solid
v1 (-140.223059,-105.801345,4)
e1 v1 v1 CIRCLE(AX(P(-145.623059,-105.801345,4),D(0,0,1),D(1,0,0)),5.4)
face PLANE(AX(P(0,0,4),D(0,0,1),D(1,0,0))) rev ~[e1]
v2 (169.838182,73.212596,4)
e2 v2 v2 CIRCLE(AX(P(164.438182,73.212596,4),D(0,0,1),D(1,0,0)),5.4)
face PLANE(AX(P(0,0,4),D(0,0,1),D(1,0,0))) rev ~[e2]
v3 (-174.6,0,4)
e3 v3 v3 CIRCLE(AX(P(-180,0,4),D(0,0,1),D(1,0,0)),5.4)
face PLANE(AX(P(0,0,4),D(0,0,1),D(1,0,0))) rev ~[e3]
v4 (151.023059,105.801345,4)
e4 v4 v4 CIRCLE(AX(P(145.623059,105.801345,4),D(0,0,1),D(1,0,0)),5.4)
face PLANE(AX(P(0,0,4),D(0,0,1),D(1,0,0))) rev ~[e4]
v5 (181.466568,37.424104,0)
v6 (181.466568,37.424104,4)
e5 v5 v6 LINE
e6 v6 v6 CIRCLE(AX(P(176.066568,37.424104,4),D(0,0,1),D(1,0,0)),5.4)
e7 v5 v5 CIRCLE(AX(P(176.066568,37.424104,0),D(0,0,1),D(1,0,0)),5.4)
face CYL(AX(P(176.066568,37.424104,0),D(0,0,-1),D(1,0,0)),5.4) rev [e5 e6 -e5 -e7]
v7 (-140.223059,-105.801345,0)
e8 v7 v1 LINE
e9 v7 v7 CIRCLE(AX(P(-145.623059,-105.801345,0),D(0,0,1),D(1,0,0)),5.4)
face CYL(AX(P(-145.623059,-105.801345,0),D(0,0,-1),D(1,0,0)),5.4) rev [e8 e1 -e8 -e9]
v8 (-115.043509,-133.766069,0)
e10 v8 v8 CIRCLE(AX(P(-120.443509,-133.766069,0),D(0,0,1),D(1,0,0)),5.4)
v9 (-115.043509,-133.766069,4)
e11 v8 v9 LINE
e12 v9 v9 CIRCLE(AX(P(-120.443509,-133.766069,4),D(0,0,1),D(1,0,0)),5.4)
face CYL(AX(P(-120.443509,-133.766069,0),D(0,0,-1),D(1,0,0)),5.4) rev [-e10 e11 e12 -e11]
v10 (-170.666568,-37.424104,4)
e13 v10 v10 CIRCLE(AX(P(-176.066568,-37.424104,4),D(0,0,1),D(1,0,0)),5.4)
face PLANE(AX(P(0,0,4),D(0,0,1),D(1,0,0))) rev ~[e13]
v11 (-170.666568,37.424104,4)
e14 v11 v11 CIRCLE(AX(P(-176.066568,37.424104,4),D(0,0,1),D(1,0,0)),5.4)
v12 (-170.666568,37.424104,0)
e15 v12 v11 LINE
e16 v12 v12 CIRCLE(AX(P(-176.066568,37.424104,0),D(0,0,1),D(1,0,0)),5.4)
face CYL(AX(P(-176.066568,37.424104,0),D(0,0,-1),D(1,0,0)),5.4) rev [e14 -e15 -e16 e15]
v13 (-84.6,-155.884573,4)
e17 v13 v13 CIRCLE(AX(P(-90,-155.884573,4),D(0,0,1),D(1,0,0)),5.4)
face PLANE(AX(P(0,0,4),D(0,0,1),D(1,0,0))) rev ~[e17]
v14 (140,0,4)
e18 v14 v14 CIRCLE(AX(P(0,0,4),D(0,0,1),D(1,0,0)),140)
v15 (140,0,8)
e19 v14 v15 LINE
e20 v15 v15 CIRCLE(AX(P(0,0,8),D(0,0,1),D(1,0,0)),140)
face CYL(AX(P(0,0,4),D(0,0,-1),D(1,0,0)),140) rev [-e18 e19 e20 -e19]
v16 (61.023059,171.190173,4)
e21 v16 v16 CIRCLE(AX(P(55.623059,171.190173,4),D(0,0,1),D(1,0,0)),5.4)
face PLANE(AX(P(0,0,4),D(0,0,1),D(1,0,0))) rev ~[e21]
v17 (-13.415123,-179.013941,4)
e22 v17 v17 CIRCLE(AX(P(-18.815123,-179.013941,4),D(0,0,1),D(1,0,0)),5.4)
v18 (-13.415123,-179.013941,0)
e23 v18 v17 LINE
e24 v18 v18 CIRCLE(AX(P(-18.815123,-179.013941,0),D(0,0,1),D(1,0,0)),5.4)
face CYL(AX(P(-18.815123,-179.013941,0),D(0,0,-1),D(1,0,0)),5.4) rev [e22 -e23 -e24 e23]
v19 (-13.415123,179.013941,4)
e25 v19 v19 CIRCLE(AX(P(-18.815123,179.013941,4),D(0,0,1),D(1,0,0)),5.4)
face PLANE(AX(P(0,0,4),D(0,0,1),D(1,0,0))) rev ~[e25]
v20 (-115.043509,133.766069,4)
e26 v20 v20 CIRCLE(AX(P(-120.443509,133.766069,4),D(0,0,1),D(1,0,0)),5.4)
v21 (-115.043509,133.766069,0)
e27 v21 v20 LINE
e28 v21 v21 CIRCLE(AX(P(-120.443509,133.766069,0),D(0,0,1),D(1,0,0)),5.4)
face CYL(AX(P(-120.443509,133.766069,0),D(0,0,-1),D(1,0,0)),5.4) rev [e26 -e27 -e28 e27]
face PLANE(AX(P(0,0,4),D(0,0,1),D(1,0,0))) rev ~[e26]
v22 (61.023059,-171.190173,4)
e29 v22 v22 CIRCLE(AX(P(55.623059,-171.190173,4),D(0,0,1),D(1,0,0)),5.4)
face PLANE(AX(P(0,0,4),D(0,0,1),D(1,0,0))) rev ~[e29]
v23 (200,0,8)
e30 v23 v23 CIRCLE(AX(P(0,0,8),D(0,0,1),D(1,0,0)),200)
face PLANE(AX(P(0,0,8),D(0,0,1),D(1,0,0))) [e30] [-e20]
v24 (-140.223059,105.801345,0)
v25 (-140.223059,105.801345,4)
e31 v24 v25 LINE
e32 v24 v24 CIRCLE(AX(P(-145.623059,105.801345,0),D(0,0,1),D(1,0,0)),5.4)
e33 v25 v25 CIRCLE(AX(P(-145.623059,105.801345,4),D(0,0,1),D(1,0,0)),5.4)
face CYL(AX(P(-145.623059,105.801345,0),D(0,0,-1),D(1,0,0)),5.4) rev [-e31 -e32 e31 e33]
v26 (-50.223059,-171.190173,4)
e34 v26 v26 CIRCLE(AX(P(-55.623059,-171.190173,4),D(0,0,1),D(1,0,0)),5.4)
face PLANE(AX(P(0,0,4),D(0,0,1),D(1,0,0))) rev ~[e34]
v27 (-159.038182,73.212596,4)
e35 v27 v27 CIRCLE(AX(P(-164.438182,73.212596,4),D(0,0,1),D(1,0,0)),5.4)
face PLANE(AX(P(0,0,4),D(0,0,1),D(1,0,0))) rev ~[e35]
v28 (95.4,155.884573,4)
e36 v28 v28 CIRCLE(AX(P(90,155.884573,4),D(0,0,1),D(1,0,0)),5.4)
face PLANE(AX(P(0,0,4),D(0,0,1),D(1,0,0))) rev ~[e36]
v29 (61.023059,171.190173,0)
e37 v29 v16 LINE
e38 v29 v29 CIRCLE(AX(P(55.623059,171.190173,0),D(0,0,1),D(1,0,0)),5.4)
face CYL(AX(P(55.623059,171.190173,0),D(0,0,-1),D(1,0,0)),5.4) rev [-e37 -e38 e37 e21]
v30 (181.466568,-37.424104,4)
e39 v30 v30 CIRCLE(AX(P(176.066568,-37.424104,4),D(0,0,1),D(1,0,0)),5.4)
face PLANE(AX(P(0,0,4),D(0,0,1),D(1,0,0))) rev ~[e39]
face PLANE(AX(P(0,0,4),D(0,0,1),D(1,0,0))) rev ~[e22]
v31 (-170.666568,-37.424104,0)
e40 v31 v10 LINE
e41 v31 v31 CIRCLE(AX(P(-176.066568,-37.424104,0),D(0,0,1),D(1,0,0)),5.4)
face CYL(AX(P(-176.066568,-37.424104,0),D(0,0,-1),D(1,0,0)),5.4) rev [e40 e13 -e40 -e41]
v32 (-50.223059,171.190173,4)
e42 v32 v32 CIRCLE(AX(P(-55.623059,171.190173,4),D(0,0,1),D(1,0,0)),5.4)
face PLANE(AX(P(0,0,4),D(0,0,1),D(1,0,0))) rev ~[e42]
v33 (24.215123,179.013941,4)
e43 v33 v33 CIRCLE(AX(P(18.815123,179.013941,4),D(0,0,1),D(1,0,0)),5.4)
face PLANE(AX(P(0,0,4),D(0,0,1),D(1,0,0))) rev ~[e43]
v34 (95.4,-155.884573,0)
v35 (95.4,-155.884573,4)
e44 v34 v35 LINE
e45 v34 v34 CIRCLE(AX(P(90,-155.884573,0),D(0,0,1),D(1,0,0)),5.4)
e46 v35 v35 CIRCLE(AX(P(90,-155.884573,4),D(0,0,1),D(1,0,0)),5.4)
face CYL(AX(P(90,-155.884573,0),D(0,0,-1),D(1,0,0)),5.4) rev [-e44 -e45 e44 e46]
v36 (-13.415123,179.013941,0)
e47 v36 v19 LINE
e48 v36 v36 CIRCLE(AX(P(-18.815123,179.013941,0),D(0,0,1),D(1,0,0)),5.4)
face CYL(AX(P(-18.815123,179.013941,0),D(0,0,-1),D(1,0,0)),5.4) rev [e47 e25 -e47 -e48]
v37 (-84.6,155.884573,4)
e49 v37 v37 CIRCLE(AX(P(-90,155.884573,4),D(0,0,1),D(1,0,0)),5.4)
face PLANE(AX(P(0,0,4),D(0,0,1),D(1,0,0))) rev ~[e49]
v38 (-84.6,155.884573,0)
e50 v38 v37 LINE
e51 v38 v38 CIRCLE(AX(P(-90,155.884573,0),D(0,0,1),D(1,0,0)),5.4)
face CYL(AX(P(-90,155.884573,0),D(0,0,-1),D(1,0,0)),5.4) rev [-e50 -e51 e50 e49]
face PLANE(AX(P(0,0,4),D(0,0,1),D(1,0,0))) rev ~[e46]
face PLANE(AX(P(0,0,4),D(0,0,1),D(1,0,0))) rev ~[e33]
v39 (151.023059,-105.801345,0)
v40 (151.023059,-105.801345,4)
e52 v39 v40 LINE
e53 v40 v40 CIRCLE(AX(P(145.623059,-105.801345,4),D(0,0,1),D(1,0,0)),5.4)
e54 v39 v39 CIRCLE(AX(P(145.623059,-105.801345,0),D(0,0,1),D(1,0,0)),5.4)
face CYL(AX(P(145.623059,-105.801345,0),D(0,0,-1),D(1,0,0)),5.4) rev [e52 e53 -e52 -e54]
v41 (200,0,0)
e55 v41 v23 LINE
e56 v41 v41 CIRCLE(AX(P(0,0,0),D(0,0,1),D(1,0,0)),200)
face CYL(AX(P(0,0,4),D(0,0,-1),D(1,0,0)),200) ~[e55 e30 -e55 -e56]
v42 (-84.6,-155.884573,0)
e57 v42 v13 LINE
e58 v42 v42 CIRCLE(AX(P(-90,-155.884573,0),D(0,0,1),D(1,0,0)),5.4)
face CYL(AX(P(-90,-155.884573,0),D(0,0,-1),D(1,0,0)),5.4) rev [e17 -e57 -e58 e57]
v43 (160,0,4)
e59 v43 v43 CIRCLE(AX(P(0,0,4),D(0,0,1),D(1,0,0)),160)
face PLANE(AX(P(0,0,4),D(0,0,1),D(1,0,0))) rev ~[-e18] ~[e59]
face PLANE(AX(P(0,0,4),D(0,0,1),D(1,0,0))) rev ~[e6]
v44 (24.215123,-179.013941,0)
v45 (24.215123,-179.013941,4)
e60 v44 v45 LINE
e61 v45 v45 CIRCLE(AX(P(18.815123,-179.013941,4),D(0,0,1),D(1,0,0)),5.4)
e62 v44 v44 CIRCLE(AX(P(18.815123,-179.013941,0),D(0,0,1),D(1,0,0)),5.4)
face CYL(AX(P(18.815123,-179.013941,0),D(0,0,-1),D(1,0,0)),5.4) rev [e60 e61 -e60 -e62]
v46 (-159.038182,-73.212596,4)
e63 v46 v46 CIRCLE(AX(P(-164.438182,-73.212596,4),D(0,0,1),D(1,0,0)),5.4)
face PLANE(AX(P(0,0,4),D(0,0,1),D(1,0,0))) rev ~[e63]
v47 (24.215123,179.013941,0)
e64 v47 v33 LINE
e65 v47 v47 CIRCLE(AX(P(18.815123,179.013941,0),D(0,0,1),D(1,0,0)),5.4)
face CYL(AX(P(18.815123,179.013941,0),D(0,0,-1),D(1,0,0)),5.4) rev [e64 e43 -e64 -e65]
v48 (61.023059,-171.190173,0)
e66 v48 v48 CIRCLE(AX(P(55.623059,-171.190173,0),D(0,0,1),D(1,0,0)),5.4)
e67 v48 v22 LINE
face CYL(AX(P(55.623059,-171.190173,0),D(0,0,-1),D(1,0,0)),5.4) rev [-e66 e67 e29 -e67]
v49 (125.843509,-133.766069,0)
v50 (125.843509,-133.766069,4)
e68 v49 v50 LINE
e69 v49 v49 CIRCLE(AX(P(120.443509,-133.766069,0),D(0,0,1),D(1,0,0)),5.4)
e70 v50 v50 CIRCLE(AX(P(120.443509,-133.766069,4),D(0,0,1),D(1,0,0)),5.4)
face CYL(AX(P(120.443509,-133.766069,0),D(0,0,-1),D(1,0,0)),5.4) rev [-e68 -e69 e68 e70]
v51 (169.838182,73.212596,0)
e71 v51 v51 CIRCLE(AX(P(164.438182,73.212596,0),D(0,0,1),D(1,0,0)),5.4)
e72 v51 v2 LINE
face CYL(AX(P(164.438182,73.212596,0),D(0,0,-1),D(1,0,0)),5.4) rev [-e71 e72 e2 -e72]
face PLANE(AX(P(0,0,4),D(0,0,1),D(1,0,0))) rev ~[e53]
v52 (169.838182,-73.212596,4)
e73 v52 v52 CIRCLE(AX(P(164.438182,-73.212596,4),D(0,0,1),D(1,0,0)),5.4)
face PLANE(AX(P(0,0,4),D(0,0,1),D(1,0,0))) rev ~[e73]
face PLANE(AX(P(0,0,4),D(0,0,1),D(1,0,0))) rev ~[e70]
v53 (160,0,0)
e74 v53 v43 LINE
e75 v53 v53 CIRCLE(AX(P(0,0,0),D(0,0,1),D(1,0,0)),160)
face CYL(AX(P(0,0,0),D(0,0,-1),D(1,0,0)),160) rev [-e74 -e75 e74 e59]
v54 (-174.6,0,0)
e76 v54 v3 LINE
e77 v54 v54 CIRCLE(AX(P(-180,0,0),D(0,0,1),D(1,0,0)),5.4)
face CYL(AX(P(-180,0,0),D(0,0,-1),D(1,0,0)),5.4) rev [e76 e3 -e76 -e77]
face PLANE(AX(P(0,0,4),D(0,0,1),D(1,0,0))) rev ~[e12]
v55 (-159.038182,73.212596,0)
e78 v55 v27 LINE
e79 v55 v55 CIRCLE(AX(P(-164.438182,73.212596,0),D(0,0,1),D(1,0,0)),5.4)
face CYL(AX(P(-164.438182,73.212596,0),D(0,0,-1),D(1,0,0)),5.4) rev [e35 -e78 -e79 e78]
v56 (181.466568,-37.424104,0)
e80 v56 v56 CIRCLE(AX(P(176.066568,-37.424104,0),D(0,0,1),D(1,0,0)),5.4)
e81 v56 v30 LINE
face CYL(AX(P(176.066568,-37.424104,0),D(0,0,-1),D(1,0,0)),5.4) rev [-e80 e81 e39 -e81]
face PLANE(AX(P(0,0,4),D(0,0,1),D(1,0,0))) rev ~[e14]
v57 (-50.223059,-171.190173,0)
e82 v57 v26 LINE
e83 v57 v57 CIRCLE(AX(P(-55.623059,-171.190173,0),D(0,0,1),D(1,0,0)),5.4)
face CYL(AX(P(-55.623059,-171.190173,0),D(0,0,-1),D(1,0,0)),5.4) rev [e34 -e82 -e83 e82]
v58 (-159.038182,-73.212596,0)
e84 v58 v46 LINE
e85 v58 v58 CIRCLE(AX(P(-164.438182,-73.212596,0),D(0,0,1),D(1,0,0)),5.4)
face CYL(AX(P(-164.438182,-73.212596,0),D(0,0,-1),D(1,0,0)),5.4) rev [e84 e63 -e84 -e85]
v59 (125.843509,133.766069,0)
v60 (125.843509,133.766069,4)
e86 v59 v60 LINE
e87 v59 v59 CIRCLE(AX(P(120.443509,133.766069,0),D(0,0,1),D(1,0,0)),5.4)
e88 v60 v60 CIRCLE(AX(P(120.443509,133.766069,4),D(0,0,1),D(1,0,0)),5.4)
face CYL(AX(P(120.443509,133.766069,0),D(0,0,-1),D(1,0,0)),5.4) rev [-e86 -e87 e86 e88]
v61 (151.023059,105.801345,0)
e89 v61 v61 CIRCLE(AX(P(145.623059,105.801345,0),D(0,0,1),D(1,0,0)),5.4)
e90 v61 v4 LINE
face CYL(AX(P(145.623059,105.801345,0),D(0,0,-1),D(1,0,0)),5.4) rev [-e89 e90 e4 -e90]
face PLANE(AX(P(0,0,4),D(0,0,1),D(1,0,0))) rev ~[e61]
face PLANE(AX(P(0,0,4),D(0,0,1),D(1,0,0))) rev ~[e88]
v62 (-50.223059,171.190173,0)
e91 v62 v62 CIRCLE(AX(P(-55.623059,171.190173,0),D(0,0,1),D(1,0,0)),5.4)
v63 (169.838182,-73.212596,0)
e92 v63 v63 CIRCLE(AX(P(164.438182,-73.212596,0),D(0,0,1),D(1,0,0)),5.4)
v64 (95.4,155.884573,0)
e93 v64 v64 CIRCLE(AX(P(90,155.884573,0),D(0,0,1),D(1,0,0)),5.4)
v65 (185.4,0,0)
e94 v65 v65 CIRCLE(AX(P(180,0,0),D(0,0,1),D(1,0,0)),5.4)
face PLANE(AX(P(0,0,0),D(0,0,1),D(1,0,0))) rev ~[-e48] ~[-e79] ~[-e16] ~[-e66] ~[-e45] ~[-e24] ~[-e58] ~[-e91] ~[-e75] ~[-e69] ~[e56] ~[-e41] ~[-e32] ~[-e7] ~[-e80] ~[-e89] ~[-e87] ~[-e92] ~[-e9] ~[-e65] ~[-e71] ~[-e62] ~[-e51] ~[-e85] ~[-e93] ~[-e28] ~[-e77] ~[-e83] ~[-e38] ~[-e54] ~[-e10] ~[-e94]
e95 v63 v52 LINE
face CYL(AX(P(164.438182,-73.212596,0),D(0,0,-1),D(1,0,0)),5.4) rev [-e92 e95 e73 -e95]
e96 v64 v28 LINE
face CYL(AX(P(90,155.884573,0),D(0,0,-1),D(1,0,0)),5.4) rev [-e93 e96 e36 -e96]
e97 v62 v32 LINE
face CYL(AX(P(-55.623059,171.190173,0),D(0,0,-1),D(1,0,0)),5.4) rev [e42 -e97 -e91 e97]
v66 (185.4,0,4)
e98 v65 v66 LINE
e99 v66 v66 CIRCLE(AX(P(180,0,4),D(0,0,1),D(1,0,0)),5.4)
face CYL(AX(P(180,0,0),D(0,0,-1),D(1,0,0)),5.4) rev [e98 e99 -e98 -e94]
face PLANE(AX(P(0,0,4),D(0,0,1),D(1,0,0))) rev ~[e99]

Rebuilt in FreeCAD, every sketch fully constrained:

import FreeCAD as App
import Part
import Sketcher

V = App.Vector
Q = App.Units.Quantity

doc = App.newDocument("Part")
body = doc.addObject("PartDesign::Body", "Body")

# Sketch on XY plane
sketch1 = body.newObject("Sketcher::SketchObject", "Sketch")
sketch1.AttachmentSupport = (doc.getObject("XY_Plane"), [""])
sketch1.MapMode = "FlatFace"
sketch1.addGeometry(Part.Circle(V(0, 0, 0), V(0, 0, 1), 200), False)
sketch1.addGeometry(Part.Circle(V(-146, -106, 0), V(0, 0, 1), 5), False)
sketch1.addGeometry(Part.Circle(V(-120, -134, 0), V(0, 0, 1), 5), False)
sketch1.addGeometry(Part.Circle(V(-56, -171, 0), V(0, 0, 1), 5), False)
sketch1.addGeometry(Part.Circle(V(-90, -156, 0), V(0, 0, 1), 5), False)
sketch1.addGeometry(Part.Circle(V(-19, -179, 0), V(0, 0, 1), 5), False)
sketch1.addGeometry(Part.Circle(V(-164, -73, 0), V(0, 0, 1), 5), False)
sketch1.addGeometry(Part.Circle(V(-176, -37, 0), V(0, 0, 1), 5), False)
sketch1.addGeometry(Part.Circle(V(-180, 0, 0), V(0, 0, 1), 5), False)
sketch1.addGeometry(Part.Circle(V(0, 0, 0), V(0, 0, 1), 160), False)
sketch1.addGeometry(Part.Circle(V(19, -179, 0), V(0, 0, 1), 5), False)
sketch1.addGeometry(Part.Circle(V(56, -171, 0), V(0, 0, 1), 5), False)
sketch1.addGeometry(Part.Circle(V(90, -156, 0), V(0, 0, 1), 5), False)
sketch1.addGeometry(Part.Circle(V(120, -134, 0), V(0, 0, 1), 5), False)
sketch1.addGeometry(Part.Circle(V(146, -106, 0), V(0, 0, 1), 5), False)
sketch1.addGeometry(Part.Circle(V(164, -73, 0), V(0, 0, 1), 5), False)
sketch1.addGeometry(Part.Circle(V(176, -37, 0), V(0, 0, 1), 5), False)
sketch1.addGeometry(Part.Circle(V(180, 0, 0), V(0, 0, 1), 5), False)
sketch1.addGeometry(Part.Circle(V(-176, 37, 0), V(0, 0, 1), 5), False)
sketch1.addGeometry(Part.Circle(V(-164, 73, 0), V(0, 0, 1), 5), False)
sketch1.addGeometry(Part.Circle(V(-146, 106, 0), V(0, 0, 1), 5), False)
sketch1.addGeometry(Part.Circle(V(-120, 134, 0), V(0, 0, 1), 5), False)
sketch1.addGeometry(Part.Circle(V(-90, 156, 0), V(0, 0, 1), 5), False)
sketch1.addGeometry(Part.Circle(V(-56, 171, 0), V(0, 0, 1), 5), False)
sketch1.addGeometry(Part.Circle(V(-19, 179, 0), V(0, 0, 1), 5), False)
sketch1.addGeometry(Part.Circle(V(176, 37, 0), V(0, 0, 1), 5), False)
sketch1.addGeometry(Part.Circle(V(164, 73, 0), V(0, 0, 1), 5), False)
sketch1.addGeometry(Part.Circle(V(19, 179, 0), V(0, 0, 1), 5), False)
sketch1.addGeometry(Part.Circle(V(90, 156, 0), V(0, 0, 1), 5), False)
sketch1.addGeometry(Part.Circle(V(56, 171, 0), V(0, 0, 1), 5), False)
sketch1.addGeometry(Part.Circle(V(120, 134, 0), V(0, 0, 1), 5), False)
sketch1.addGeometry(Part.Circle(V(146, 106, 0), V(0, 0, 1), 5), False)
sketch1.addConstraint(Sketcher.Constraint("Coincident", 0, 3, -1, 1))
sketch1.addConstraint(Sketcher.Constraint("Coincident", 9, 3, -1, 1))
sketch1.addConstraint(Sketcher.Constraint("Equal", 1, 2))
sketch1.addConstraint(Sketcher.Constraint("Equal", 2, 3))
sketch1.addConstraint(Sketcher.Constraint("Equal", 3, 4))
sketch1.addConstraint(Sketcher.Constraint("Equal", 4, 5))
sketch1.addConstraint(Sketcher.Constraint("Equal", 5, 6))
sketch1.addConstraint(Sketcher.Constraint("Equal", 6, 7))
sketch1.addConstraint(Sketcher.Constraint("Equal", 7, 8))
sketch1.addConstraint(Sketcher.Constraint("Equal", 8, 10))
sketch1.addConstraint(Sketcher.Constraint("Equal", 10, 11))
sketch1.addConstraint(Sketcher.Constraint("Equal", 11, 12))
sketch1.addConstraint(Sketcher.Constraint("Equal", 12, 13))
sketch1.addConstraint(Sketcher.Constraint("Equal", 13, 14))
sketch1.addConstraint(Sketcher.Constraint("Equal", 14, 15))
sketch1.addConstraint(Sketcher.Constraint("Equal", 15, 16))
sketch1.addConstraint(Sketcher.Constraint("Equal", 16, 17))
sketch1.addConstraint(Sketcher.Constraint("Equal", 17, 18))
sketch1.addConstraint(Sketcher.Constraint("Equal", 18, 19))
sketch1.addConstraint(Sketcher.Constraint("Equal", 19, 20))
sketch1.addConstraint(Sketcher.Constraint("Equal", 20, 21))
sketch1.addConstraint(Sketcher.Constraint("Equal", 21, 22))
sketch1.addConstraint(Sketcher.Constraint("Equal", 22, 23))
sketch1.addConstraint(Sketcher.Constraint("Equal", 23, 24))
sketch1.addConstraint(Sketcher.Constraint("Equal", 24, 25))
sketch1.addConstraint(Sketcher.Constraint("Equal", 25, 26))
sketch1.addConstraint(Sketcher.Constraint("Equal", 26, 27))
sketch1.addConstraint(Sketcher.Constraint("Equal", 27, 28))
sketch1.addConstraint(Sketcher.Constraint("Equal", 28, 29))
sketch1.addConstraint(Sketcher.Constraint("Equal", 29, 30))
sketch1.addConstraint(Sketcher.Constraint("Equal", 30, 31))
sketch1.addConstraint(Sketcher.Constraint("Symmetric", 8, 3, 17, 3, -1, 1))
sketch1.addConstraint(Sketcher.Constraint("Symmetric", 16, 3, 18, 3, -1, 1))
sketch1.addConstraint(Sketcher.Constraint("Symmetric", 15, 3, 19, 3, -1, 1))
sketch1.addConstraint(Sketcher.Constraint("Symmetric", 14, 3, 20, 3, -1, 1))
sketch1.addConstraint(Sketcher.Constraint("Symmetric", 13, 3, 21, 3, -1, 1))
sketch1.addConstraint(Sketcher.Constraint("Symmetric", 12, 3, 22, 3, -1, 1))
sketch1.addConstraint(Sketcher.Constraint("Symmetric", 11, 3, 23, 3, -1, 1))
sketch1.addConstraint(Sketcher.Constraint("Symmetric", 10, 3, 24, 3, -1, 1))
sketch1.addConstraint(Sketcher.Constraint("Symmetric", 7, 3, 25, 3, -1, 1))
sketch1.addConstraint(Sketcher.Constraint("Symmetric", 6, 3, 26, 3, -1, 1))
sketch1.addConstraint(Sketcher.Constraint("Symmetric", 5, 3, 27, 3, -1, 1))
sketch1.addConstraint(Sketcher.Constraint("Symmetric", 4, 3, 28, 3, -1, 1))
sketch1.addConstraint(Sketcher.Constraint("Symmetric", 3, 3, 29, 3, -1, 1))
sketch1.addConstraint(Sketcher.Constraint("Symmetric", 2, 3, 30, 3, -1, 1))
sketch1.addConstraint(Sketcher.Constraint("Symmetric", 1, 3, 31, 3, -1, 1))
sketch1.addConstraint(Sketcher.Constraint("Symmetric", 5, 3, 10, 3, -2))
sketch1.addConstraint(Sketcher.Constraint("Symmetric", 3, 3, 11, 3, -2))
sketch1.addConstraint(Sketcher.Constraint("Symmetric", 4, 3, 12, 3, -2))
sketch1.addConstraint(Sketcher.Constraint("Symmetric", 2, 3, 13, 3, -2))
sketch1.addConstraint(Sketcher.Constraint("Symmetric", 1, 3, 14, 3, -2))
sketch1.addConstraint(Sketcher.Constraint("Symmetric", 6, 3, 15, 3, -2))
sketch1.addConstraint(Sketcher.Constraint("Symmetric", 7, 3, 16, 3, -2))
sketch1.addConstraint(Sketcher.Constraint("PointOnObject", 8, 3, -1))
sketch1.addConstraint(Sketcher.Constraint("Diameter", 0, Q("400 mm")))
sketch1.addConstraint(Sketcher.Constraint("Diameter", 9, Q("320 mm")))
sketch1.addConstraint(Sketcher.Constraint("Diameter", 1, Q("10.8 mm")))
sketch1.addConstraint(Sketcher.Constraint("DistanceX", 4, 3, -1, 1, Q("90 mm")))
sketch1.addConstraint(Sketcher.Constraint("DistanceX", 8, 3, -1, 1, Q("180 mm")))
sketch1.addConstraint(Sketcher.Constraint("DistanceX", 1, 3, 3, 3, Q("90 mm")))
sketch1.addConstraint(Sketcher.Constraint("DistanceY", 3, 3, 4, 3, Q("15.3056 mm")))
sketch1.addConstraint(Sketcher.Constraint("DistanceY", 6, 3, 18, 3, Q("110.6367 mm")))
sketch1.addConstraint(Sketcher.Constraint("DistanceX", 1, 3, -1, 1, Q("145.623059 mm")))
sketch1.addConstraint(Sketcher.Constraint("DistanceX", 2, 3, -1, 1, Q("120.443509 mm")))
sketch1.addConstraint(Sketcher.Constraint("DistanceY", 2, 3, -1, 1, Q("133.766069 mm")))
sketch1.addConstraint(Sketcher.Constraint("DistanceY", 5, 3, -1, 1, Q("179.013941 mm")))
sketch1.addConstraint(Sketcher.Constraint("DistanceX", 7, 3, -1, 1, Q("176.066568 mm")))
sketch1.addConstraint(Sketcher.Constraint("DistanceY", 5, 3, 3, 3, Q("7.823768 mm")))
sketch1.addConstraint(Sketcher.Constraint("DistanceY", 1, 3, 6, 3, Q("32.58875 mm")))
sketch1.addConstraint(Sketcher.Constraint("DistanceX", 6, 3, 5, 3, Q("145.623059 mm")))
sketch1.addConstraint(Sketcher.Constraint("DistanceY", 6, 3, 7, 3, Q("35.788491 mm")))
sketch1.addConstraint(Sketcher.Constraint("DistanceX", 5, 3, -1, 1, Q("18.815123 mm")))
pad1 = body.newObject("PartDesign::Pad", "Pad")
pad1.Profile = sketch1
pad1.Length = 4

# Sketch on XY plane
sketch2 = body.newObject("Sketcher::SketchObject", "Sketch001")
sketch2.AttachmentSupport = (doc.getObject("XY_Plane"), [""])
sketch2.MapMode = "FlatFace"
sketch2.AttachmentOffset = App.Placement(V(0, 0, 4), App.Rotation())
sketch2.addGeometry(Part.Circle(V(0, 0, 0), V(0, 0, 1), 200), False)
sketch2.addGeometry(Part.Circle(V(0, 0, 0), V(0, 0, 1), 140), False)
sketch2.addConstraint(Sketcher.Constraint("Coincident", 0, 3, -1, 1))
sketch2.addConstraint(Sketcher.Constraint("Coincident", 1, 3, -1, 1))
sketch2.addConstraint(Sketcher.Constraint("Diameter", 0, Q("400 mm")))
sketch2.addConstraint(Sketcher.Constraint("Diameter", 1, Q("280 mm")))
pad2 = body.newObject("PartDesign::Pad", "Pad001")
pad2.Profile = sketch2
pad2.Length = 4

doc.recompute()
